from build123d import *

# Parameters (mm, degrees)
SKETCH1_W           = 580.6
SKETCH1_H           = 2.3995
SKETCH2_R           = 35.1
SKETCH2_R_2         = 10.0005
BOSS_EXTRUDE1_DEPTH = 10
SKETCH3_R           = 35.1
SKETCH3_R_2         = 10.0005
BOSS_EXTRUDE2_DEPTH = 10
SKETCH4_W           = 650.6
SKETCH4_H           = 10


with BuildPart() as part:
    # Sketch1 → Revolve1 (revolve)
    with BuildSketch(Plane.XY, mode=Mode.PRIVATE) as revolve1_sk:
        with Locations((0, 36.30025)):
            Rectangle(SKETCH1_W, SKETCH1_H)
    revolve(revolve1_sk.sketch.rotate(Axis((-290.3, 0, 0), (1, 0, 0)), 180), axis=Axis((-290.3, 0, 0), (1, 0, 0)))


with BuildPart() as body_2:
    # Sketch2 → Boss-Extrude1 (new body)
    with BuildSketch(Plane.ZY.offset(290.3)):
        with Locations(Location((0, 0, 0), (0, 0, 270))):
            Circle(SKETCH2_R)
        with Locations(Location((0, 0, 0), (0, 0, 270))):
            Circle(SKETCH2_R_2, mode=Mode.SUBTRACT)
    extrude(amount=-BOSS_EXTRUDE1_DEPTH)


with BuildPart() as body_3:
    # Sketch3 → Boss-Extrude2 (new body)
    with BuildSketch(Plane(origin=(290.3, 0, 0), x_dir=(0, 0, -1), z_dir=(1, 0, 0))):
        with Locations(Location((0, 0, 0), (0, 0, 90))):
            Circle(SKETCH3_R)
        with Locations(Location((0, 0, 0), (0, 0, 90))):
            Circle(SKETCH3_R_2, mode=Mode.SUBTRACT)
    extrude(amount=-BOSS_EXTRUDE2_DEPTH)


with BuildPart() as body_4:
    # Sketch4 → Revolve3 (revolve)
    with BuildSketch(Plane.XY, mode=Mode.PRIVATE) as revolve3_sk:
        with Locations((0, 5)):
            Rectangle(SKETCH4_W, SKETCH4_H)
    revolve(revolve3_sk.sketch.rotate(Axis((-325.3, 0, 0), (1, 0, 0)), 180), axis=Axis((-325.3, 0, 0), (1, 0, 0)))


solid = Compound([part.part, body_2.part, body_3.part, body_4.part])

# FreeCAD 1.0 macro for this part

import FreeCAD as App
import Part
import Sketcher

V = App.Vector
Q = App.Units.Quantity

doc = App.newDocument("Part")
params = doc.addObject("Spreadsheet::Sheet", "Params")
for row, (alias, value) in enumerate([
    ("sketch1_width", "580.6 mm"),
    ("revolution_angle", "360 deg"),
    ("sketch2_diameter", "70.2 mm"),
    ("pad1_length", "10 mm"),
    ("sketch3_diameter", "70.2 mm"),
    ("pad2_length", "10 mm"),
    ("sketch4_height", "10 mm"),
    ("sketch4_width", "650.6 mm"),
    ("revolution2_angle", "360 deg"),
], start=1):
    params.set(f"A{row}", alias)
    params.set(f"B{row}", "=" + value)
    params.setAlias(f"B{row}", alias)

body = doc.addObject("PartDesign::Body", "Body")

sketch1 = body.newObject("Sketcher::SketchObject", "Sketch")
sketch1.AttachmentSupport = (doc.getObject("XY_Plane"), [""])
sketch1.MapMode = "FlatFace"
sketch1.addGeometry([
    Part.LineSegment(V(-290.3, 37.5, 0), V(-290.3, 35.1005, 0)),
    Part.LineSegment(V(-290.3, 35.1005, 0), V(290.3, 35.1005, 0)),
    Part.LineSegment(V(290.3, 35.1005, 0), V(290.3, 37.5, 0)),
    Part.LineSegment(V(290.3, 37.5, 0), V(-290.3, 37.5, 0)),
], False)
sketch1.addConstraint([
    Sketcher.Constraint("Coincident", 0, 2, 1, 1),
    Sketcher.Constraint("Coincident", 1, 2, 2, 1),
    Sketcher.Constraint("Coincident", 2, 2, 3, 1),
    Sketcher.Constraint("Coincident", 3, 2, 0, 1),
    Sketcher.Constraint("Vertical", 0),
    Sketcher.Constraint("Horizontal", 1),
    Sketcher.Constraint("Vertical", 2),
    Sketcher.Constraint("Horizontal", 3),
    Sketcher.Constraint("DistanceX", 1, 1, 1, 2, Q("580.6 mm")),
    Sketcher.Constraint("DistanceX", 0, 2, -1, 1, Q("290.3 mm")),
    Sketcher.Constraint("DistanceY", -1, 1, 2, 2, Q("37.5 mm")),
    Sketcher.Constraint("DistanceY", 0, 2, 0, 1, Q("2.3995 mm")),
])
sketch1.setExpression("Constraints[8]", "Params.sketch1_width")
revolution = body.newObject("PartDesign::Revolution", "Revolution")
revolution.Profile = sketch1
revolution.ReferenceAxis = (sketch1, ["H_Axis"])
revolution.setExpression("Angle", "Params.revolution_angle")
body2 = doc.addObject("PartDesign::Body", "Body001")

sketch2 = body2.newObject("Sketcher::SketchObject", "Sketch001")
sketch2.AttachmentSupport = (doc.getObject("YZ_Plane001"), [""])
sketch2.MapMode = "FlatFace"
sketch2.AttachmentOffset = App.Placement(V(0, 0, -290.3), App.Rotation())
sketch2.addGeometry([
    Part.Circle(V(0, 0, 0), V(0, 0, 1), 35.1),
    Part.Circle(V(0, 0, 0), V(0, 0, 1), 10.0005),
], False)
sketch2.addConstraint([
    Sketcher.Constraint("Coincident", 0, 3, -1, 1),
    Sketcher.Constraint("Coincident", 1, 3, -1, 1),
    Sketcher.Constraint("Diameter", 0, Q("70.2 mm")),
    Sketcher.Constraint("Diameter", 1, Q("20.001 mm")),
])
sketch2.setExpression("Constraints[2]", "Params.sketch2_diameter")
pad1 = body2.newObject("PartDesign::Pad", "Pad")
pad1.Profile = sketch2
pad1.setExpression("Length", "Params.pad1_length")
body3 = doc.addObject("PartDesign::Body", "Body002")

sketch3 = body3.newObject("Sketcher::SketchObject", "Sketch002")
sketch3.AttachmentSupport = (doc.getObject("YZ_Plane002"), [""])
sketch3.MapMode = "FlatFace"
sketch3.AttachmentOffset = App.Placement(V(0, 0, 290.3), App.Rotation())
sketch3.addGeometry([
    Part.Circle(V(0, 0, 0), V(0, 0, 1), 35.1),
    Part.Circle(V(0, 0, 0), V(0, 0, 1), 10.0005),
], False)
sketch3.addConstraint([
    Sketcher.Constraint("Coincident", 0, 3, -1, 1),
    Sketcher.Constraint("Coincident", 1, 3, -1, 1),
    Sketcher.Constraint("Diameter", 0, Q("70.2 mm")),
    Sketcher.Constraint("Diameter", 1, Q("20.001 mm")),
])
sketch3.setExpression("Constraints[2]", "Params.sketch3_diameter")
pad2 = body3.newObject("PartDesign::Pad", "Pad001")
pad2.Profile = sketch3
pad2.setExpression("Length", "Params.pad2_length")
pad2.Reversed = True
body4 = doc.addObject("PartDesign::Body", "Body003")

sketch4 = body4.newObject("Sketcher::SketchObject", "Sketch003")
sketch4.AttachmentSupport = (doc.getObject("XY_Plane003"), [""])
sketch4.MapMode = "FlatFace"
sketch4.addGeometry([
    Part.LineSegment(V(-325.3, 10, 0), V(-325.3, 0, 0)),
    Part.LineSegment(V(-325.3, 0, 0), V(325.3, 0, 0)),
    Part.LineSegment(V(325.3, 0, 0), V(325.3, 10, 0)),
    Part.LineSegment(V(325.3, 10, 0), V(-325.3, 10, 0)),
], False)
sketch4.addConstraint([
    Sketcher.Constraint("Coincident", 0, 2, 1, 1),
    Sketcher.Constraint("Coincident", 1, 2, 2, 1),
    Sketcher.Constraint("Coincident", 2, 2, 3, 1),
    Sketcher.Constraint("Coincident", 3, 2, 0, 1),
    Sketcher.Constraint("Vertical", 0),
    Sketcher.Constraint("Horizontal", 1),
    Sketcher.Constraint("Vertical", 2),
    Sketcher.Constraint("Horizontal", 3),
    Sketcher.Constraint("Symmetric", 0, 2, 1, 2, -1, 1),
    Sketcher.Constraint("DistanceY", 0, 2, 0, 1, Q("10 mm")),
    Sketcher.Constraint("DistanceX", 1, 1, 1, 2, Q("650.6 mm")),
])
sketch4.setExpression("Constraints[9]", "Params.sketch4_height")
sketch4.setExpression("Constraints[10]", "Params.sketch4_width")
revolution2 = body4.newObject("PartDesign::Revolution", "Revolution001")
revolution2.Profile = sketch4
revolution2.ReferenceAxis = (sketch4, ["H_Axis"])
revolution2.setExpression("Angle", "Params.revolution2_angle")

doc.recompute()
